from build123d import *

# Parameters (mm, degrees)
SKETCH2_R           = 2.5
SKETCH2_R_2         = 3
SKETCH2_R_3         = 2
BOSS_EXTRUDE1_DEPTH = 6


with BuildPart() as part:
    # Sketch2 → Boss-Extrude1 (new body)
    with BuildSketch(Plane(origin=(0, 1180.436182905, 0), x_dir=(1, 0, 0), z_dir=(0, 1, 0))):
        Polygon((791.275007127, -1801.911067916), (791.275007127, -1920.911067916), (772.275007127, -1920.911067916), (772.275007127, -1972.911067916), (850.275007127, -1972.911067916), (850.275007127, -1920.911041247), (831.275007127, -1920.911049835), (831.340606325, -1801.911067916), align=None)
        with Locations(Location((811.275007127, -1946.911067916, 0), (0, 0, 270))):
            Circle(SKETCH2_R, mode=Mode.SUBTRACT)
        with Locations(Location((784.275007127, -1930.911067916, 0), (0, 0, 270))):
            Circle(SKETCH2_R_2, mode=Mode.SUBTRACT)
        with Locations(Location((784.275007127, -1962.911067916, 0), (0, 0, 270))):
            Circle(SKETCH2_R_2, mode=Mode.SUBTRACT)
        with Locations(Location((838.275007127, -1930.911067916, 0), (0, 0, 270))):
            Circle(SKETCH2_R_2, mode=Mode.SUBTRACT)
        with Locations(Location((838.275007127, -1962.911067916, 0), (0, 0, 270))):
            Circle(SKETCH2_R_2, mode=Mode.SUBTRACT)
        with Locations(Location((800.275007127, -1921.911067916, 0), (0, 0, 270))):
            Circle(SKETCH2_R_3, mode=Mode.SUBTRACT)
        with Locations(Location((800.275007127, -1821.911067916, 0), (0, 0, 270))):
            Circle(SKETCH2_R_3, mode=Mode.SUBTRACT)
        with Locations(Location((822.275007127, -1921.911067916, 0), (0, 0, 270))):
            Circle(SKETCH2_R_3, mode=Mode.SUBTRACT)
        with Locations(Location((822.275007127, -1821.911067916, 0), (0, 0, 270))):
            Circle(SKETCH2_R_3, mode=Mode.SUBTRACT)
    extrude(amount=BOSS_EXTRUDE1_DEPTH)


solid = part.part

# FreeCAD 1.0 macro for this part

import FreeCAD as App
import Part
import Sketcher
from FreeCAD import Vector
Q = App.Units.Quantity

doc = App.newDocument("Part")
params = doc.addObject("Spreadsheet::Sheet", "Params")
for row, (alias, value) in enumerate([
    ("sketch1_diameter", "6 mm"),
    ("sketch1_diameter2", "4 mm"),
    ("sketch1_diameter3", "5 mm"),
    ("sketch1_width", "19 mm"),
    ("sketch1_width2", "78 mm"),
    ("pad1_length", "6 mm"),
], start=1):
    params.set(f"A{row}", alias)
    params.set(f"B{row}", "=" + value)
    params.setAlias(f"B{row}", alias)

body = doc.addObject("PartDesign::Body", "Body")

sketch1 = body.newObject("Sketcher::SketchObject", "Sketch")
sketch1.AttachmentSupport = (doc.getObject("XZ_Plane"), [""])
sketch1.MapMode = "FlatFace"
sketch1.AttachmentOffset = App.Placement(Vector(0, 0, -1180.436183), App.Rotation())
sketch1.addGeometry(Part.LineSegment(Vector(791.3, 1801.9, 0), Vector(791.3, 1920.9, 0)), False)
sketch1.addGeometry(Part.LineSegment(Vector(791.3, 1920.9, 0), Vector(772.3, 1920.9, 0)), False)
sketch1.addGeometry(Part.LineSegment(Vector(772.3, 1920.9, 0), Vector(772.3, 1972.9, 0)), False)
sketch1.addGeometry(Part.LineSegment(Vector(772.3, 1972.9, 0), Vector(850.3, 1972.9, 0)), False)
sketch1.addGeometry(Part.LineSegment(Vector(850.3, 1972.9, 0), Vector(850.3, 1920.9, 0)), False)
sketch1.addGeometry(Part.LineSegment(Vector(850.3, 1920.9, 0), Vector(831.3, 1920.9, 0)), False)
sketch1.addGeometry(Part.LineSegment(Vector(831.3, 1920.9, 0), Vector(831.3, 1801.9, 0)), False)
sketch1.addGeometry(Part.LineSegment(Vector(831.3, 1801.9, 0), Vector(791.3, 1801.9, 0)), False)
sketch1.addGeometry(Part.Circle(Vector(784.3, 1962.9, 0), Vector(0, 0, 1), 3), False)
sketch1.addGeometry(Part.Circle(Vector(784.3, 1930.9, 0), Vector(0, 0, 1), 3), False)
sketch1.addGeometry(Part.Circle(Vector(800.3, 1921.9, 0), Vector(0, 0, 1), 2), False)
sketch1.addGeometry(Part.Circle(Vector(811.3, 1946.9, 0), Vector(0, 0, 1), 2.5), False)
sketch1.addGeometry(Part.Circle(Vector(838.3, 1962.9, 0), Vector(0, 0, 1), 3), False)
sketch1.addGeometry(Part.Circle(Vector(838.3, 1930.9, 0), Vector(0, 0, 1), 3), False)
sketch1.addGeometry(Part.Circle(Vector(822.3, 1921.9, 0), Vector(0, 0, 1), 2), False)
sketch1.addGeometry(Part.Circle(Vector(800.3, 1821.9, 0), Vector(0, 0, 1), 2), False)
sketch1.addGeometry(Part.Circle(Vector(822.3, 1821.9, 0), Vector(0, 0, 1), 2), False)
sketch1.addConstraint(Sketcher.Constraint("Coincident", 0, 2, 1, 1))
sketch1.addConstraint(Sketcher.Constraint("Coincident", 1, 2, 2, 1))
sketch1.addConstraint(Sketcher.Constraint("Coincident", 2, 2, 3, 1))
sketch1.addConstraint(Sketcher.Constraint("Coincident", 3, 2, 4, 1))
sketch1.addConstraint(Sketcher.Constraint("Coincident", 4, 2, 5, 1))
sketch1.addConstraint(Sketcher.Constraint("Coincident", 5, 2, 6, 1))
sketch1.addConstraint(Sketcher.Constraint("Coincident", 6, 2, 7, 1))
sketch1.addConstraint(Sketcher.Constraint("Coincident", 7, 2, 0, 1))
sketch1.addConstraint(Sketcher.Constraint("Vertical", 0))
sketch1.addConstraint(Sketcher.Constraint("Horizontal", 1))
sketch1.addConstraint(Sketcher.Constraint("Vertical", 2))
sketch1.addConstraint(Sketcher.Constraint("Horizontal", 3))
sketch1.addConstraint(Sketcher.Constraint("Vertical", 4))
sketch1.addConstraint(Sketcher.Constraint("Horizontal", 7))
sketch1.addConstraint(Sketcher.Constraint("Equal", 8, 9))
sketch1.addConstraint(Sketcher.Constraint("Equal", 9, 12))
sketch1.addConstraint(Sketcher.Constraint("Equal", 12, 13))
sketch1.addConstraint(Sketcher.Constraint("Equal", 10, 14))
sketch1.addConstraint(Sketcher.Constraint("Equal", 14, 15))
sketch1.addConstraint(Sketcher.Constraint("Equal", 15, 16))
sketch1.addConstraint(Sketcher.Constraint("Horizontal", 8, 3, 12, 3))
sketch1.addConstraint(Sketcher.Constraint("Horizontal", 9, 3, 13, 3))
sketch1.addConstraint(Sketcher.Constraint("Horizontal", 10, 3, 14, 3))
sketch1.addConstraint(Sketcher.Constraint("Horizontal", 15, 3, 16, 3))
sketch1.addConstraint(Sketcher.Constraint("Vertical", 8, 3, 9, 3))
sketch1.addConstraint(Sketcher.Constraint("Vertical", 12, 3, 13, 3))
sketch1.addConstraint(Sketcher.Constraint("Vertical", 10, 3, 15, 3))
sketch1.addConstraint(Sketcher.Constraint("Vertical", 14, 3, 16, 3))
sketch1.addConstraint(Sketcher.Constraint("Diameter", 8, Q("6 mm")))
sketch1.addConstraint(Sketcher.Constraint("Diameter", 10, Q("4 mm")))
sketch1.addConstraint(Sketcher.Constraint("Diameter", 11, Q("5 mm")))
sketch1.addConstraint(Sketcher.Constraint("DistanceX", 1, 2, 1, 1, Q("19 mm")))
sketch1.addConstraint(Sketcher.Constraint("DistanceX", 3, 1, 3, 2, Q("78 mm")))
sketch1.addConstraint(Sketcher.Constraint("DistanceY", 0, 1, 0, 2, Q("119 mm")))
sketch1.addConstraint(Sketcher.Constraint("DistanceY", 2, 1, 2, 2, Q("52 mm")))
sketch1.addConstraint(Sketcher.Constraint("Distance", 5, Q("19 mm")))
sketch1.addConstraint(Sketcher.Constraint("Distance", 6, Q("119 mm")))
sketch1.addConstraint(Sketcher.Constraint("DistanceY", 9, 3, 8, 3, Q("32 mm")))
sketch1.addConstraint(Sketcher.Constraint("DistanceX", 9, 3, 10, 3, Q("16 mm")))
sketch1.addConstraint(Sketcher.Constraint("DistanceY", 10, 3, 9, 3, Q("9 mm")))
sketch1.addConstraint(Sketcher.Constraint("DistanceX", 10, 3, 11, 3, Q("11 mm")))
sketch1.addConstraint(Sketcher.Constraint("DistanceY", 10, 3, 11, 3, Q("25 mm")))
sketch1.addConstraint(Sketcher.Constraint("DistanceX", 11, 3, 12, 3, Q("27 mm")))
sketch1.addConstraint(Sketcher.Constraint("DistanceX", 14, 3, 13, 3, Q("16 mm")))
sketch1.addConstraint(Sketcher.Constraint("DistanceY", 15, 3, 10, 3, Q("100 mm")))
sketch1.addConstraint(Sketcher.Constraint("DistanceX", 0, 2, 10, 3, Q("9 mm")))
sketch1.addConstraint(Sketcher.Constraint("DistanceY", 0, 2, 10, 3, Q("1 mm")))
sketch1.addConstraint(Sketcher.Constraint("DistanceX", 7, 2, 7, 1, Q("40.065599 mm")))
sketch1.addConstraint(Sketcher.Constraint("DistanceY", 4, 2, 4, 1, Q("52.000027 mm")))
sketch1.addConstraint(Sketcher.Constraint("DistanceY", -1, 1, 4, 2, Q("1920.911041 mm")))
sketch1.addConstraint(Sketcher.Constraint("DistanceX", -1, 1, 8, 3, Q("784.275007 mm")))
sketch1.setExpression("Constraints[28]", "Params.sketch1_diameter")
sketch1.setExpression("Constraints[29]", "Params.sketch1_diameter2")
sketch1.setExpression("Constraints[30]", "Params.sketch1_diameter3")
sketch1.setExpression("Constraints[31]", "Params.sketch1_width")
sketch1.setExpression("Constraints[32]", "Params.sketch1_width2")
pad1 = body.newObject("PartDesign::Pad", "Pad")
pad1.Profile = sketch1
pad1.setExpression("Length", "Params.pad1_length")
pad1.Reversed = True

doc.recompute()
